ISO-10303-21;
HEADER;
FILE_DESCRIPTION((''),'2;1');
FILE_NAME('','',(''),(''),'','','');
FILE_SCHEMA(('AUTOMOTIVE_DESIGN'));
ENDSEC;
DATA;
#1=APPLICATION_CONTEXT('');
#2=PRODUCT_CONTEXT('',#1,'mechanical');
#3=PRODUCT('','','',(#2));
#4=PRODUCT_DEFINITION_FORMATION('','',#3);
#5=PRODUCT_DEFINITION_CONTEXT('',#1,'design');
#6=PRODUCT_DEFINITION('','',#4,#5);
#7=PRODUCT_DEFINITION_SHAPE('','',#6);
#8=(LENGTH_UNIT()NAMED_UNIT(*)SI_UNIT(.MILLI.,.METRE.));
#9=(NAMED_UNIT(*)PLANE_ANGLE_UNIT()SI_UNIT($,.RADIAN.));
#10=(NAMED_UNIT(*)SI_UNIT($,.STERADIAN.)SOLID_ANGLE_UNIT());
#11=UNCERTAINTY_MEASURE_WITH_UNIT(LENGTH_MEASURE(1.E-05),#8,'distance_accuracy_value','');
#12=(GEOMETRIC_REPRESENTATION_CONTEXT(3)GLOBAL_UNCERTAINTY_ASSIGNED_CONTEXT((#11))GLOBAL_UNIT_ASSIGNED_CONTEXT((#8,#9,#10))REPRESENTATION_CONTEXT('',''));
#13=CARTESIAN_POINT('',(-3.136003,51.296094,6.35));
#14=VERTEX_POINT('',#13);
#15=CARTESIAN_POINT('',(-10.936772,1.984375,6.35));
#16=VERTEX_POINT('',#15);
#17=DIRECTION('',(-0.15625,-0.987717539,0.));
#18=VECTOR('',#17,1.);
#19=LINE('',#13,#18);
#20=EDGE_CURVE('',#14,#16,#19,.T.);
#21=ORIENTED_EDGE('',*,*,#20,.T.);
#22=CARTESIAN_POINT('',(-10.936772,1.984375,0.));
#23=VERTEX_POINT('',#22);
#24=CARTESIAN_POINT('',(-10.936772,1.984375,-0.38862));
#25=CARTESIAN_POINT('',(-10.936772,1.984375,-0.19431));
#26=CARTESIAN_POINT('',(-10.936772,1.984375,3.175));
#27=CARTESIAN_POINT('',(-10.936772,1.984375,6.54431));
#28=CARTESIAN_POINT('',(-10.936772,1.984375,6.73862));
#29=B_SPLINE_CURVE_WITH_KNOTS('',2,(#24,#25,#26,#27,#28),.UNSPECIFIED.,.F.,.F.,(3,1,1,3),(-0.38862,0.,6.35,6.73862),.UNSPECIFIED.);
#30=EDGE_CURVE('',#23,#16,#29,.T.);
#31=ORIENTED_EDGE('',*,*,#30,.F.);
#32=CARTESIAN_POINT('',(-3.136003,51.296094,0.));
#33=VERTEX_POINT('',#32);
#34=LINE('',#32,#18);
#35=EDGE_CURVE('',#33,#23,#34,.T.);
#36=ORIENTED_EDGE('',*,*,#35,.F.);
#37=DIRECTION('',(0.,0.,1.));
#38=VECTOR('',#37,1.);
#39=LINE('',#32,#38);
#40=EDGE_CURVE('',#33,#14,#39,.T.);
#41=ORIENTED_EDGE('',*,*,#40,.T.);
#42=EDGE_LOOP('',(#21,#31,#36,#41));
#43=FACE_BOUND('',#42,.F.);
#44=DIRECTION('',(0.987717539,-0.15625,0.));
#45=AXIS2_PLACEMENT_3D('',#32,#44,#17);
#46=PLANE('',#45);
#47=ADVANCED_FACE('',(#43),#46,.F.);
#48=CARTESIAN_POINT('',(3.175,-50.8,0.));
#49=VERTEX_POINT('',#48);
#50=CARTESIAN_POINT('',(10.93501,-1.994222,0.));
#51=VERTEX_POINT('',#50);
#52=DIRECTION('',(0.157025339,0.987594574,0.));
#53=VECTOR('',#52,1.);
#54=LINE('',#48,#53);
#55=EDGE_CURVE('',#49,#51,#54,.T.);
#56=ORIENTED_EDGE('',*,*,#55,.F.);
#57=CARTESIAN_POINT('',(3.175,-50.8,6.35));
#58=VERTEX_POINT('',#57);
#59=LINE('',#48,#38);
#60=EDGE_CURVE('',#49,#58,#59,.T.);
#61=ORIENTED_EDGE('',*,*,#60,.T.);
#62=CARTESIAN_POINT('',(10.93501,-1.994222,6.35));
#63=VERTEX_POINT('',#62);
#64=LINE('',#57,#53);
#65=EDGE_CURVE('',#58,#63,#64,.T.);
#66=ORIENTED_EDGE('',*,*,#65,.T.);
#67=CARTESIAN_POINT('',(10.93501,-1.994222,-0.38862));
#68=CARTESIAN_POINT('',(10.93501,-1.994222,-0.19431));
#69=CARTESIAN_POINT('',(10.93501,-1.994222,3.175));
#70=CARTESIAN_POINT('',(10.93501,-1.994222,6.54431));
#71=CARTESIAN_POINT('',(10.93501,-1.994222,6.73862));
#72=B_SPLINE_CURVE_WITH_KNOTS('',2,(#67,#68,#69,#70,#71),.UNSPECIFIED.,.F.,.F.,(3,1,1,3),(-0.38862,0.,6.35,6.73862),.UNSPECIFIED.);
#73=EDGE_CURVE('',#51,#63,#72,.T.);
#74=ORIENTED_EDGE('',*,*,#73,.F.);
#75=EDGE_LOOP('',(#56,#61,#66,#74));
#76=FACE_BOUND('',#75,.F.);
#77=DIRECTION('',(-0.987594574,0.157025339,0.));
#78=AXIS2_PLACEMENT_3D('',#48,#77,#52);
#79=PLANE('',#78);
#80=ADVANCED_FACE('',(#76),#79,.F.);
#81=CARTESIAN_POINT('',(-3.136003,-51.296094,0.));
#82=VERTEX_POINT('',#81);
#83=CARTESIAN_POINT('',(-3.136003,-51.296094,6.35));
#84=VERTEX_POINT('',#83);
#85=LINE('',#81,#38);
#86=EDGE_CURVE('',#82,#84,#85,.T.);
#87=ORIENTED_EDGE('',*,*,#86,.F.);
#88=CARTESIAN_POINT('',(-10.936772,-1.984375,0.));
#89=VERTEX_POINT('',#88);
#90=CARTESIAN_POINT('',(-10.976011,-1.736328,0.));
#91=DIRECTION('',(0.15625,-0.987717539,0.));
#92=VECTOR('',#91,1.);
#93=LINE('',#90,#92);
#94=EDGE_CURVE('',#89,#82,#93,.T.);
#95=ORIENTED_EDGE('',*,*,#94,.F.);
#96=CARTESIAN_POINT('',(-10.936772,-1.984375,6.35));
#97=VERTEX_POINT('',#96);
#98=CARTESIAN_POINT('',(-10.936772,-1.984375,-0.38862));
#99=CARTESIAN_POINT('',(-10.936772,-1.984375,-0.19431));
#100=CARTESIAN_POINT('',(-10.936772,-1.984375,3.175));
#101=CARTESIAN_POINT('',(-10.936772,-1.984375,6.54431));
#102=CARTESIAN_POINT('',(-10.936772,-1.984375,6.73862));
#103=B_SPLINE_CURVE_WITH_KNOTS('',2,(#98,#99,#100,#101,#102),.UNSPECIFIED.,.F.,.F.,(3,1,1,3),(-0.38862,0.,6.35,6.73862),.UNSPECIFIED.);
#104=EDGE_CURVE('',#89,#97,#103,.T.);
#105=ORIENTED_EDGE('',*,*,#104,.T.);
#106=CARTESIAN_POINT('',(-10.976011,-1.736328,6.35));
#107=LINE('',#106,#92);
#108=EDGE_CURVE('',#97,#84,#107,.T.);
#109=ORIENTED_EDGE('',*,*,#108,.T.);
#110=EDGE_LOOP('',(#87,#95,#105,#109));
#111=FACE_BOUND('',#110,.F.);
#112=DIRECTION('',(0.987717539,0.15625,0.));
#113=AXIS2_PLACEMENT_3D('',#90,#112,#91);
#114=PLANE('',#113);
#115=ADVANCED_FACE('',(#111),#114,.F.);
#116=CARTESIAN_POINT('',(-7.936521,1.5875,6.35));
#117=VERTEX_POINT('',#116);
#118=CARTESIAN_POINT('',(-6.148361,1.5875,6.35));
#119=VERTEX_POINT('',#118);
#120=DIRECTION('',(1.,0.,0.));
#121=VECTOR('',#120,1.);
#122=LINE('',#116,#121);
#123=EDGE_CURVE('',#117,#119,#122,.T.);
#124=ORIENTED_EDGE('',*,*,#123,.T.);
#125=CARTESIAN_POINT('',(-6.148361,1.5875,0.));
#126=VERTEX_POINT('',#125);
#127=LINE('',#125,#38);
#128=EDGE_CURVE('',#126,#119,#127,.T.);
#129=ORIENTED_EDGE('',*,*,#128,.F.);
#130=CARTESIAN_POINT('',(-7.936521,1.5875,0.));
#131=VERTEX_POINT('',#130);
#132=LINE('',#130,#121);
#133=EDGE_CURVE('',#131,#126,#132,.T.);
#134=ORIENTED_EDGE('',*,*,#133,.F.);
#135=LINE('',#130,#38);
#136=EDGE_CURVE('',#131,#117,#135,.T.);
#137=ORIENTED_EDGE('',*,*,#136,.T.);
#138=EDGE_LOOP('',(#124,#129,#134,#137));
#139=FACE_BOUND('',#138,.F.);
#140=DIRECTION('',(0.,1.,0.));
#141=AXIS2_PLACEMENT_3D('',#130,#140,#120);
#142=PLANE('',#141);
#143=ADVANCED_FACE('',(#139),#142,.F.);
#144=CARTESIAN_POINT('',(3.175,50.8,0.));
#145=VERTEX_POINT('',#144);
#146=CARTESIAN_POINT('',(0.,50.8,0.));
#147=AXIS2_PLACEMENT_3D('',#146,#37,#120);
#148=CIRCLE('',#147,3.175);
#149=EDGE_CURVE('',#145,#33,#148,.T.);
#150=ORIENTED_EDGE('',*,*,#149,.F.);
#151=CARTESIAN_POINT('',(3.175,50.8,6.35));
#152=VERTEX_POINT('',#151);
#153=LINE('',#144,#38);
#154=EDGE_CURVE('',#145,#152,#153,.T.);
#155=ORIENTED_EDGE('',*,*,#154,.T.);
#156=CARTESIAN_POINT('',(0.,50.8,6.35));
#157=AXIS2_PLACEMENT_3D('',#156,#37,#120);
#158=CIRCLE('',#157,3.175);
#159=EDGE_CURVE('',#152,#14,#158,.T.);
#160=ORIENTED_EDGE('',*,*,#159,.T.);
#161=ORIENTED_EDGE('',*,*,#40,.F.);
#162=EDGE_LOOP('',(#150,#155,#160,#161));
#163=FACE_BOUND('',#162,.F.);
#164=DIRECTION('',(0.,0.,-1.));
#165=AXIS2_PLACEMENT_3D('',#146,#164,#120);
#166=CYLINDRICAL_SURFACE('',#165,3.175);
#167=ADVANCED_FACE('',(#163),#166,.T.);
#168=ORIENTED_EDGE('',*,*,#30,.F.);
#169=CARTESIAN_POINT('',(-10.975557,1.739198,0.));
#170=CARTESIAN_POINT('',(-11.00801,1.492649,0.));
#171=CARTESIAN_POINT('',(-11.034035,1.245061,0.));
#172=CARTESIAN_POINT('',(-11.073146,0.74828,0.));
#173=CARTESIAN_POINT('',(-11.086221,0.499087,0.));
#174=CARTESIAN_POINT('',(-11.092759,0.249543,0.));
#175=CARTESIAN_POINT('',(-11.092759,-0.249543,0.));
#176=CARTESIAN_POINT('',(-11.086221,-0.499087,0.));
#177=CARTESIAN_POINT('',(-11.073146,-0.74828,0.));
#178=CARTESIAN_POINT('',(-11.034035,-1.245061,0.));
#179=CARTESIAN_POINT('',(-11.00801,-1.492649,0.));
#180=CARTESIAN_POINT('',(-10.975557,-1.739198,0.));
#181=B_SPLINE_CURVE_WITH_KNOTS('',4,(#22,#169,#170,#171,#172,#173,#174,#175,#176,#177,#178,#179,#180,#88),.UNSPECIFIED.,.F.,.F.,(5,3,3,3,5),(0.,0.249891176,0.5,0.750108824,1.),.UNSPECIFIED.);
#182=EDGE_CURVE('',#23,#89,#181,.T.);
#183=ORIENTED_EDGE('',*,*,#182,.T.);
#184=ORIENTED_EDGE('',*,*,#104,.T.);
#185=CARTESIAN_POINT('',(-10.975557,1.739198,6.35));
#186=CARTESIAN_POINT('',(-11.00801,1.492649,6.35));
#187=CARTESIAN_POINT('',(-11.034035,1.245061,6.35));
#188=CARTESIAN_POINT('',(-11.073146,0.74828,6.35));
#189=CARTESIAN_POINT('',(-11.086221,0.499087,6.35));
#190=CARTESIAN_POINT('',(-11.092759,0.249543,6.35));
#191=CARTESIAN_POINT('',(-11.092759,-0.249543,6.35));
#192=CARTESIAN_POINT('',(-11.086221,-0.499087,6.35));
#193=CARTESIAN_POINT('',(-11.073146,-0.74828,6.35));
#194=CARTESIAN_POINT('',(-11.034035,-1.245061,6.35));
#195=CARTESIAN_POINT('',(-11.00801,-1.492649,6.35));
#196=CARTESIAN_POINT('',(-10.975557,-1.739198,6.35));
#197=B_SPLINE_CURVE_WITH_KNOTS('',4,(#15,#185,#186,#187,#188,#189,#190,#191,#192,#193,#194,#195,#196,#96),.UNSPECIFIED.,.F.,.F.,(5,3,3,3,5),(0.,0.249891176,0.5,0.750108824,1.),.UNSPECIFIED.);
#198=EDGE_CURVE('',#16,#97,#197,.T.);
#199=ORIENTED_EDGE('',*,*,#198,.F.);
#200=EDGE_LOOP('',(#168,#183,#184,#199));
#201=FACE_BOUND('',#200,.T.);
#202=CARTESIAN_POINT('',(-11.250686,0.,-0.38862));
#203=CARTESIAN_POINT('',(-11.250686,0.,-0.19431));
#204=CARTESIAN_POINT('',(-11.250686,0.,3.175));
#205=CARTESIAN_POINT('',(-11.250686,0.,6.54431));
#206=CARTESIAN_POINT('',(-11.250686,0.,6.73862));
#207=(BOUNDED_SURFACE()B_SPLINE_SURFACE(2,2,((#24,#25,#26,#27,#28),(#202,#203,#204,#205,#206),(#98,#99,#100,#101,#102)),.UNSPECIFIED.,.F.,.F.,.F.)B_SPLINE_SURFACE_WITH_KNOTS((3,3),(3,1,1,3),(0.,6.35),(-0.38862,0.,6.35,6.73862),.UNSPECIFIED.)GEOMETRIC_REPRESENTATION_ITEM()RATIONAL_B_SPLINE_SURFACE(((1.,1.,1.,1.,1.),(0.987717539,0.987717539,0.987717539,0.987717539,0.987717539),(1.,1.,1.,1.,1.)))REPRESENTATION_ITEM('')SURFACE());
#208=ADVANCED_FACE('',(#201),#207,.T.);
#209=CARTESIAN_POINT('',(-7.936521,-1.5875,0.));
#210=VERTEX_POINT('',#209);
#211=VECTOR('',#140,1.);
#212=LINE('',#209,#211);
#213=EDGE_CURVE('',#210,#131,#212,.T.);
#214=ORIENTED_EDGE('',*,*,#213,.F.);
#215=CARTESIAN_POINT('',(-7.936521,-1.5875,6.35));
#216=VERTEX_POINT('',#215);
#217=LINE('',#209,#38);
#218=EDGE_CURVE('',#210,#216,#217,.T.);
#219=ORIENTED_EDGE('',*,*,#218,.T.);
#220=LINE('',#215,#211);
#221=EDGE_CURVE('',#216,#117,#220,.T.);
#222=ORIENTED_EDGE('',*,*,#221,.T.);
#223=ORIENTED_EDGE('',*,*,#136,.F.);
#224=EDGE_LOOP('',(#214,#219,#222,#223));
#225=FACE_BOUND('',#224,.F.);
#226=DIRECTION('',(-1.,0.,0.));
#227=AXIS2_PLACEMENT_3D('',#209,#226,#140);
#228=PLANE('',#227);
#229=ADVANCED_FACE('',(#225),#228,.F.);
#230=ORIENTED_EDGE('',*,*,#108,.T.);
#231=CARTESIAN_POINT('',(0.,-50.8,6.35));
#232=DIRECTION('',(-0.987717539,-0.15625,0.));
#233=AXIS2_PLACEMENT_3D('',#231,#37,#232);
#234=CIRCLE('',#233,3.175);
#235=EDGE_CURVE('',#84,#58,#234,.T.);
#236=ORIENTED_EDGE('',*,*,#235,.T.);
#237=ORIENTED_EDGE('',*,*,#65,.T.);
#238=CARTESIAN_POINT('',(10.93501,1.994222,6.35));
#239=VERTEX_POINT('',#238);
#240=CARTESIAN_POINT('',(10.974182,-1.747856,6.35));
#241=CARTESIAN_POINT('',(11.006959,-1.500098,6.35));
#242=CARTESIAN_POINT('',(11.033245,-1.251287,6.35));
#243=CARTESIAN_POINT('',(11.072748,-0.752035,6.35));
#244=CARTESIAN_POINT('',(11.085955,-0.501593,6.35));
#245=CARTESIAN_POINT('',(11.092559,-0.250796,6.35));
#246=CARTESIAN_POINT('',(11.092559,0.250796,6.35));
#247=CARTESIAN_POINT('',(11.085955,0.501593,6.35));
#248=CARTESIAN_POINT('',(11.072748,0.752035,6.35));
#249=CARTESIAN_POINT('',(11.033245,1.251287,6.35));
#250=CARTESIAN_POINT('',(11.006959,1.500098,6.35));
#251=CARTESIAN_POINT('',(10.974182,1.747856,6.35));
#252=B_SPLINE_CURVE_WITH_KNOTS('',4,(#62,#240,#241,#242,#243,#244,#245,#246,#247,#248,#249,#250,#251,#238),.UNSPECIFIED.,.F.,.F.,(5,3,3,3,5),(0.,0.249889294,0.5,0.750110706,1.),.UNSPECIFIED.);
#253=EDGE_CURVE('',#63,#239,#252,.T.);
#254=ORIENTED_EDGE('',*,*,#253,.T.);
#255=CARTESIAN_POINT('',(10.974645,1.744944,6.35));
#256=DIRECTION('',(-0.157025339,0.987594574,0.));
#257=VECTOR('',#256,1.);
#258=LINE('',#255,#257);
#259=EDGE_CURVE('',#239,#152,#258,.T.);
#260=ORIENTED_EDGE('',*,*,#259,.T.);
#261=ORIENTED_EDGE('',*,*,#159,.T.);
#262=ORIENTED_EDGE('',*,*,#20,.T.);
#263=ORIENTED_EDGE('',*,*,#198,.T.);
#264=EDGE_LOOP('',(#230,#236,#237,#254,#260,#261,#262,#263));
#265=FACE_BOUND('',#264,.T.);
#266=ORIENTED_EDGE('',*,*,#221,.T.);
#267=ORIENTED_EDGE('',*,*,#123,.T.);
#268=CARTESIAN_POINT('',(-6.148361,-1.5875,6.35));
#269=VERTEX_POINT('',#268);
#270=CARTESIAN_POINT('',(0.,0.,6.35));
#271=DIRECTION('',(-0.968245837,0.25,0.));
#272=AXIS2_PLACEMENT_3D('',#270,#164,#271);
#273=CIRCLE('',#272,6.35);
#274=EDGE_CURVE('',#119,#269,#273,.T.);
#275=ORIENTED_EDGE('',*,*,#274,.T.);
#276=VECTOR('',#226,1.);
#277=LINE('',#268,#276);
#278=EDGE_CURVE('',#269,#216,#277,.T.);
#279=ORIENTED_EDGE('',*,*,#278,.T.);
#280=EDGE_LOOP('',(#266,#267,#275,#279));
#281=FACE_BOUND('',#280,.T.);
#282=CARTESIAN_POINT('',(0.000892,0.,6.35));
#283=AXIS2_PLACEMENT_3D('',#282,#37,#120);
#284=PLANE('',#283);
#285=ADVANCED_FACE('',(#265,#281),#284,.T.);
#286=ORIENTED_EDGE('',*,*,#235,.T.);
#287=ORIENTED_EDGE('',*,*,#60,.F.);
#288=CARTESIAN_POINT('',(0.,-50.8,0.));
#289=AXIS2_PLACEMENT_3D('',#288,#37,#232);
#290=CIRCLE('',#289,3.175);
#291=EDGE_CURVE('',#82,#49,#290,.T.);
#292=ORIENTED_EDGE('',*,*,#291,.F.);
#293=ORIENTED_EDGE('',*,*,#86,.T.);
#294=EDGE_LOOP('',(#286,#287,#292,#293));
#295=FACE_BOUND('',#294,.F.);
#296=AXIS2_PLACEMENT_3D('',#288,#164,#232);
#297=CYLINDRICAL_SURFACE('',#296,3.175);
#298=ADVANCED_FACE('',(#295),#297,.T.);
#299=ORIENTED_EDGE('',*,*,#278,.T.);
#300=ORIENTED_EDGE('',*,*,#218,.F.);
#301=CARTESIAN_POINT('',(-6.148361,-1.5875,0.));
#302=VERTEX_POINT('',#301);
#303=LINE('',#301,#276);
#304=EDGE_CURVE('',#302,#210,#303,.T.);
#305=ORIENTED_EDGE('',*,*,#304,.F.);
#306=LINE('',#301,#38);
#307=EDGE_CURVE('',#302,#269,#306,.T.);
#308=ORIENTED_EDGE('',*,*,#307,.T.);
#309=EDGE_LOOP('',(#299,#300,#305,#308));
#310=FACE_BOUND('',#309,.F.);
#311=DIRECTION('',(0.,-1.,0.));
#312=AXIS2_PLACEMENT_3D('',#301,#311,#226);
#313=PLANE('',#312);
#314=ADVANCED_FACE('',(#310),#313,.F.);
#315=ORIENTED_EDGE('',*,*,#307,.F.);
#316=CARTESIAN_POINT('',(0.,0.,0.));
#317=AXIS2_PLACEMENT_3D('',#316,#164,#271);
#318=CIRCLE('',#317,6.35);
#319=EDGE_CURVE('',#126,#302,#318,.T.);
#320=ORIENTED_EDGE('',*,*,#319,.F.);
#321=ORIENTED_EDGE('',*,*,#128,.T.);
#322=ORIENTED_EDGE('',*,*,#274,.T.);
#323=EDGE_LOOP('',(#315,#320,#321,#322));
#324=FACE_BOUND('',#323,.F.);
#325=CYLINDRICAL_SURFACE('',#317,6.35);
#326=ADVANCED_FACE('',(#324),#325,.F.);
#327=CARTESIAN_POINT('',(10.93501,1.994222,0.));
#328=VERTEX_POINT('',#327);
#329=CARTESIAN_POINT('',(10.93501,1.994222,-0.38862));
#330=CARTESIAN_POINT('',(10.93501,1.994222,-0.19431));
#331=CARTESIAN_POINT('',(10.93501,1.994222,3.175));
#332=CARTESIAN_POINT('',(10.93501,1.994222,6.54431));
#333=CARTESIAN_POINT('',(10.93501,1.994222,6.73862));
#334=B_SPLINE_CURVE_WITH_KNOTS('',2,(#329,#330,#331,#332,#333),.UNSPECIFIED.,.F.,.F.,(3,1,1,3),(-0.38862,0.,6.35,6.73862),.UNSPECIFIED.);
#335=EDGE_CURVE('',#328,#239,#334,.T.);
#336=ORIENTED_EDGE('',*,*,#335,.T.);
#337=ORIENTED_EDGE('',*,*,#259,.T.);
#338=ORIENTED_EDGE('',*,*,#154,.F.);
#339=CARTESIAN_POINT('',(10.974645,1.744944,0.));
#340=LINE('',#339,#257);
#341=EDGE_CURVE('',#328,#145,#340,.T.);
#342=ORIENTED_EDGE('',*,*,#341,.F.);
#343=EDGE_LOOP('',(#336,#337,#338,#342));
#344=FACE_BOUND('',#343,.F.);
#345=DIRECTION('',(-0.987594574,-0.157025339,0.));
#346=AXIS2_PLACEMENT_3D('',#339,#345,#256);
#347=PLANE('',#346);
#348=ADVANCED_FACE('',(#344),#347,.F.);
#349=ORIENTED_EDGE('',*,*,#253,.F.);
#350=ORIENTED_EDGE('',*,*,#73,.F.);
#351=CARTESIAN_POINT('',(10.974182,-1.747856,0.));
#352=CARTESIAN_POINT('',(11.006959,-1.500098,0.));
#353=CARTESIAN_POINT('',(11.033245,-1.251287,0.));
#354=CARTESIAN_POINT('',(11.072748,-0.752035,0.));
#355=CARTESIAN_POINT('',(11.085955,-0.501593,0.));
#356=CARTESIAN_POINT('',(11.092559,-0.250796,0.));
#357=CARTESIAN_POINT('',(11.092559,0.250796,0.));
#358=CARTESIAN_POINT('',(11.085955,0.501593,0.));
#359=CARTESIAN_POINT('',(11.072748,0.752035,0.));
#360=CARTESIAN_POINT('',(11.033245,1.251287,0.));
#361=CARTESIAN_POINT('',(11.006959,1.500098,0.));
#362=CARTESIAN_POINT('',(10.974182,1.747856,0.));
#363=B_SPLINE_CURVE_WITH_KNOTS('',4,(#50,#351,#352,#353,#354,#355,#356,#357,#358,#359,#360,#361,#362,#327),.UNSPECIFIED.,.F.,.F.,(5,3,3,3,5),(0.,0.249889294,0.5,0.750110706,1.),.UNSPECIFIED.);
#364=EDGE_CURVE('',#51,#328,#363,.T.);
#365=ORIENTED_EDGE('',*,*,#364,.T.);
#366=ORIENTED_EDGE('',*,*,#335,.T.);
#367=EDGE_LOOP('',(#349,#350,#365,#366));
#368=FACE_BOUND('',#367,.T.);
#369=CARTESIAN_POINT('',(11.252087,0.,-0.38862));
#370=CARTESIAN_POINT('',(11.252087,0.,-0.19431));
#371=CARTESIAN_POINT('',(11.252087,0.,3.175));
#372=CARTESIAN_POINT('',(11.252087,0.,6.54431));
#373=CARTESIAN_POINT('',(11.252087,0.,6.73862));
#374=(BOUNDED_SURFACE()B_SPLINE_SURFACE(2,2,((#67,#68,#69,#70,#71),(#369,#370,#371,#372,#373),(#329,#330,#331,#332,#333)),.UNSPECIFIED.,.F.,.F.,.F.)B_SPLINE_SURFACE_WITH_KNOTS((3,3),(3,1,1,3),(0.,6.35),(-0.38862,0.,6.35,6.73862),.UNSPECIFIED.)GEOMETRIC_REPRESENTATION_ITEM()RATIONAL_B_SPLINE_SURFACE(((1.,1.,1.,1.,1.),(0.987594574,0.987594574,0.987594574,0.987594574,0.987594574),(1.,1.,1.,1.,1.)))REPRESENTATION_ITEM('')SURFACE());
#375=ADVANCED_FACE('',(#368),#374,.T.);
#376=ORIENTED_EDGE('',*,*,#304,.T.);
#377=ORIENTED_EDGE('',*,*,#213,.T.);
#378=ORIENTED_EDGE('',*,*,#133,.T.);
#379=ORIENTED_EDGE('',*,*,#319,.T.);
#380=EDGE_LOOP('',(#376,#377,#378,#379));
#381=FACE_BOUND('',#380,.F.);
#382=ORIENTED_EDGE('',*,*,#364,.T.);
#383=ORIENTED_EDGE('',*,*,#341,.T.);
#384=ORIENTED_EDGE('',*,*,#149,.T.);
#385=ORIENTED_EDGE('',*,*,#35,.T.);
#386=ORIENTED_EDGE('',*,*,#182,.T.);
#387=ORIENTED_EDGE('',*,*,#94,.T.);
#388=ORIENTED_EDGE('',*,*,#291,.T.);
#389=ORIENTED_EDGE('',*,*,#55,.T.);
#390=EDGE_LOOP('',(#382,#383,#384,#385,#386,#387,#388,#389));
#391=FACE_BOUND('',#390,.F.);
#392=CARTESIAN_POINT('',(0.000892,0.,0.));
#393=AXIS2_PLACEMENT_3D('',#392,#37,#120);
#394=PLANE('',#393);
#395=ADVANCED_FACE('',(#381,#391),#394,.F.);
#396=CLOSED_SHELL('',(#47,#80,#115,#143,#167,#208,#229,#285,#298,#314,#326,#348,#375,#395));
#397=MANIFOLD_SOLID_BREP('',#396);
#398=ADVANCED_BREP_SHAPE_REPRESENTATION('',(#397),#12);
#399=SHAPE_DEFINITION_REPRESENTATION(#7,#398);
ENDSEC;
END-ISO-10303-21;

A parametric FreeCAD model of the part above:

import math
import FreeCAD as App
import Part
import Sketcher

V = App.Vector
Q = App.Units.Quantity


def edges_at(feature, points):
    """Names of the edges that pass closest to the given points."""
    edges = feature.Shape.Edges
    near = lambda p: min(range(len(edges)), key=lambda i: edges[i].distToShape(Part.Vertex(*p))[0])
    return sorted({f"Edge{near(p) + 1}" for p in points})

doc = App.newDocument("Part")
body = doc.addObject("PartDesign::Body", "Body")

# Sketch on XY plane
sketch1 = body.newObject("Sketcher::SketchObject", "Sketch")
sketch1.AttachmentSupport = (doc.getObject("XY_Plane"), [""])
sketch1.MapMode = "FlatFace"
sketch1.addGeometry([
    Part.LineSegment(V(10.974645, -1.744944, 0), V(11.252087, 0, 0)),  # 0
    Part.LineSegment(V(11.252087, 0, 0), V(10.974645, 1.744944, 0)),  # 1
    Part.LineSegment(V(10.974645, 1.744944, 0), V(3.175, 50.8, 0)),  # 2
    Part.ArcOfCircle(Part.Circle(V(0, 50.8, 0), V(0, 0, 1), 3.175), math.radians(0), math.radians(171.010701)),  # 3
    Part.LineSegment(V(-3.136003, 51.296094, 0), V(-10.976011, 1.736328, 0)),  # 4
    Part.LineSegment(V(-10.976011, 1.736328, 0), V(-11.250686, 0, 0)),  # 5
    Part.LineSegment(V(-11.250686, 0, 0), V(-10.976011, -1.736328, 0)),  # 6
    Part.LineSegment(V(-10.976011, -1.736328, 0), V(-3.136003, -51.296094, 0)),  # 7
    Part.ArcOfCircle(Part.Circle(V(0, -50.8, 0), V(0, 0, 1), 3.175), math.radians(-171.010701), math.radians(0)),  # 8
    Part.LineSegment(V(3.175, -50.8, 0), V(10.974645, -1.744944, 0)),  # 9
    Part.LineSegment(V(-7.936521, 1.5875, 0), V(-6.148361, 1.5875, 0)),  # 10
    Part.ArcOfCircle(Part.Circle(V(0, 0, 0), V(0, 0, 1), 6.35), math.radians(-165.522488), math.radians(165.522488)),  # 11
    Part.LineSegment(V(-6.148361, -1.5875, 0), V(-7.936521, -1.5875, 0)),  # 12
    Part.LineSegment(V(-7.936521, -1.5875, 0), V(-7.936521, 1.5875, 0)),  # 13
], False)
sketch1.addConstraint([
    Sketcher.Constraint("Coincident", 0, 2, 1, 1),
    Sketcher.Constraint("Coincident", 1, 2, 2, 1),
    Sketcher.Constraint("Coincident", 2, 2, 3, 1),
    Sketcher.Constraint("Tangent", 3, 2, 4, 1),
    Sketcher.Constraint("Coincident", 4, 2, 5, 1),
    Sketcher.Constraint("Coincident", 5, 2, 6, 1),
    Sketcher.Constraint("Coincident", 6, 2, 7, 1),
    Sketcher.Constraint("Tangent", 7, 2, 8, 1),
    Sketcher.Constraint("Coincident", 8, 2, 9, 1),
    Sketcher.Constraint("Coincident", 9, 2, 0, 1),
    Sketcher.Constraint("Coincident", 10, 2, 11, 2),
    Sketcher.Constraint("Coincident", 11, 1, 12, 1),
    Sketcher.Constraint("Coincident", 12, 2, 13, 1),
    Sketcher.Constraint("Coincident", 13, 2, 10, 1),
    Sketcher.Constraint("Horizontal", 10),
    Sketcher.Constraint("Horizontal", 12),
    Sketcher.Constraint("Vertical", 13),
    Sketcher.Constraint("Coincident", 11, 3, -1, 1),
    Sketcher.Constraint("Equal", 3, 8),
    Sketcher.Constraint("Symmetric", 3, 3, 8, 3, -1, 1),
    Sketcher.Constraint("Symmetric", 4, 2, 6, 2, -1),
    Sketcher.Constraint("Symmetric", 2, 2, 8, 2, -1),
    Sketcher.Constraint("Symmetric", 1, 2, 9, 2, -1),
    Sketcher.Constraint("PointOnObject", 0, 2, -1),
    Sketcher.Constraint("PointOnObject", 5, 2, -1),
    Sketcher.Constraint("Parallel", 1, 2),
    Sketcher.Constraint("Parallel", 4, 5),
    Sketcher.Constraint("Horizontal", 3, 3, 2, 2),
    Sketcher.Constraint("Vertical", 10, 2, 11, 1),
    Sketcher.Constraint("Radius", 11, Q("0.25 in")),
    Sketcher.Constraint("DistanceY", -1, 1, 3, 3, Q("2 in")),
    Sketcher.Constraint("Radius", 3, Q("0.125 in")),
    Sketcher.Constraint("DistanceY", 13, 1, 13, 2, Q("0.125 in")),
    Sketcher.Constraint("DistanceX", 10, 1, 10, 2, Q("0.0704 in")),
    Sketcher.Constraint("DistanceX", 4, 2, 0, 2, Q("22.228098 mm")),
    Sketcher.Constraint("Distance", 2, Q("49.671249 mm")),
    Sketcher.Constraint("Distance", 4, Q("50.176051 mm")),
    Sketcher.Constraint("Distance", 5, Q("1.75792 mm")),
])
pad1 = body.newObject("PartDesign::Pad", "Pad")
pad1.Profile = sketch1
pad1.Length = Q("0.25 in")
doc.recompute()

fillet = body.newObject("PartDesign::Fillet", "Fillet")
fillet.Base = (pad1, edges_at(pad1, [(-11.251, 0, 3.175), (11.252, 0, 3.175)]))
fillet.Radius = Q("0.5 in")

doc.recompute()
